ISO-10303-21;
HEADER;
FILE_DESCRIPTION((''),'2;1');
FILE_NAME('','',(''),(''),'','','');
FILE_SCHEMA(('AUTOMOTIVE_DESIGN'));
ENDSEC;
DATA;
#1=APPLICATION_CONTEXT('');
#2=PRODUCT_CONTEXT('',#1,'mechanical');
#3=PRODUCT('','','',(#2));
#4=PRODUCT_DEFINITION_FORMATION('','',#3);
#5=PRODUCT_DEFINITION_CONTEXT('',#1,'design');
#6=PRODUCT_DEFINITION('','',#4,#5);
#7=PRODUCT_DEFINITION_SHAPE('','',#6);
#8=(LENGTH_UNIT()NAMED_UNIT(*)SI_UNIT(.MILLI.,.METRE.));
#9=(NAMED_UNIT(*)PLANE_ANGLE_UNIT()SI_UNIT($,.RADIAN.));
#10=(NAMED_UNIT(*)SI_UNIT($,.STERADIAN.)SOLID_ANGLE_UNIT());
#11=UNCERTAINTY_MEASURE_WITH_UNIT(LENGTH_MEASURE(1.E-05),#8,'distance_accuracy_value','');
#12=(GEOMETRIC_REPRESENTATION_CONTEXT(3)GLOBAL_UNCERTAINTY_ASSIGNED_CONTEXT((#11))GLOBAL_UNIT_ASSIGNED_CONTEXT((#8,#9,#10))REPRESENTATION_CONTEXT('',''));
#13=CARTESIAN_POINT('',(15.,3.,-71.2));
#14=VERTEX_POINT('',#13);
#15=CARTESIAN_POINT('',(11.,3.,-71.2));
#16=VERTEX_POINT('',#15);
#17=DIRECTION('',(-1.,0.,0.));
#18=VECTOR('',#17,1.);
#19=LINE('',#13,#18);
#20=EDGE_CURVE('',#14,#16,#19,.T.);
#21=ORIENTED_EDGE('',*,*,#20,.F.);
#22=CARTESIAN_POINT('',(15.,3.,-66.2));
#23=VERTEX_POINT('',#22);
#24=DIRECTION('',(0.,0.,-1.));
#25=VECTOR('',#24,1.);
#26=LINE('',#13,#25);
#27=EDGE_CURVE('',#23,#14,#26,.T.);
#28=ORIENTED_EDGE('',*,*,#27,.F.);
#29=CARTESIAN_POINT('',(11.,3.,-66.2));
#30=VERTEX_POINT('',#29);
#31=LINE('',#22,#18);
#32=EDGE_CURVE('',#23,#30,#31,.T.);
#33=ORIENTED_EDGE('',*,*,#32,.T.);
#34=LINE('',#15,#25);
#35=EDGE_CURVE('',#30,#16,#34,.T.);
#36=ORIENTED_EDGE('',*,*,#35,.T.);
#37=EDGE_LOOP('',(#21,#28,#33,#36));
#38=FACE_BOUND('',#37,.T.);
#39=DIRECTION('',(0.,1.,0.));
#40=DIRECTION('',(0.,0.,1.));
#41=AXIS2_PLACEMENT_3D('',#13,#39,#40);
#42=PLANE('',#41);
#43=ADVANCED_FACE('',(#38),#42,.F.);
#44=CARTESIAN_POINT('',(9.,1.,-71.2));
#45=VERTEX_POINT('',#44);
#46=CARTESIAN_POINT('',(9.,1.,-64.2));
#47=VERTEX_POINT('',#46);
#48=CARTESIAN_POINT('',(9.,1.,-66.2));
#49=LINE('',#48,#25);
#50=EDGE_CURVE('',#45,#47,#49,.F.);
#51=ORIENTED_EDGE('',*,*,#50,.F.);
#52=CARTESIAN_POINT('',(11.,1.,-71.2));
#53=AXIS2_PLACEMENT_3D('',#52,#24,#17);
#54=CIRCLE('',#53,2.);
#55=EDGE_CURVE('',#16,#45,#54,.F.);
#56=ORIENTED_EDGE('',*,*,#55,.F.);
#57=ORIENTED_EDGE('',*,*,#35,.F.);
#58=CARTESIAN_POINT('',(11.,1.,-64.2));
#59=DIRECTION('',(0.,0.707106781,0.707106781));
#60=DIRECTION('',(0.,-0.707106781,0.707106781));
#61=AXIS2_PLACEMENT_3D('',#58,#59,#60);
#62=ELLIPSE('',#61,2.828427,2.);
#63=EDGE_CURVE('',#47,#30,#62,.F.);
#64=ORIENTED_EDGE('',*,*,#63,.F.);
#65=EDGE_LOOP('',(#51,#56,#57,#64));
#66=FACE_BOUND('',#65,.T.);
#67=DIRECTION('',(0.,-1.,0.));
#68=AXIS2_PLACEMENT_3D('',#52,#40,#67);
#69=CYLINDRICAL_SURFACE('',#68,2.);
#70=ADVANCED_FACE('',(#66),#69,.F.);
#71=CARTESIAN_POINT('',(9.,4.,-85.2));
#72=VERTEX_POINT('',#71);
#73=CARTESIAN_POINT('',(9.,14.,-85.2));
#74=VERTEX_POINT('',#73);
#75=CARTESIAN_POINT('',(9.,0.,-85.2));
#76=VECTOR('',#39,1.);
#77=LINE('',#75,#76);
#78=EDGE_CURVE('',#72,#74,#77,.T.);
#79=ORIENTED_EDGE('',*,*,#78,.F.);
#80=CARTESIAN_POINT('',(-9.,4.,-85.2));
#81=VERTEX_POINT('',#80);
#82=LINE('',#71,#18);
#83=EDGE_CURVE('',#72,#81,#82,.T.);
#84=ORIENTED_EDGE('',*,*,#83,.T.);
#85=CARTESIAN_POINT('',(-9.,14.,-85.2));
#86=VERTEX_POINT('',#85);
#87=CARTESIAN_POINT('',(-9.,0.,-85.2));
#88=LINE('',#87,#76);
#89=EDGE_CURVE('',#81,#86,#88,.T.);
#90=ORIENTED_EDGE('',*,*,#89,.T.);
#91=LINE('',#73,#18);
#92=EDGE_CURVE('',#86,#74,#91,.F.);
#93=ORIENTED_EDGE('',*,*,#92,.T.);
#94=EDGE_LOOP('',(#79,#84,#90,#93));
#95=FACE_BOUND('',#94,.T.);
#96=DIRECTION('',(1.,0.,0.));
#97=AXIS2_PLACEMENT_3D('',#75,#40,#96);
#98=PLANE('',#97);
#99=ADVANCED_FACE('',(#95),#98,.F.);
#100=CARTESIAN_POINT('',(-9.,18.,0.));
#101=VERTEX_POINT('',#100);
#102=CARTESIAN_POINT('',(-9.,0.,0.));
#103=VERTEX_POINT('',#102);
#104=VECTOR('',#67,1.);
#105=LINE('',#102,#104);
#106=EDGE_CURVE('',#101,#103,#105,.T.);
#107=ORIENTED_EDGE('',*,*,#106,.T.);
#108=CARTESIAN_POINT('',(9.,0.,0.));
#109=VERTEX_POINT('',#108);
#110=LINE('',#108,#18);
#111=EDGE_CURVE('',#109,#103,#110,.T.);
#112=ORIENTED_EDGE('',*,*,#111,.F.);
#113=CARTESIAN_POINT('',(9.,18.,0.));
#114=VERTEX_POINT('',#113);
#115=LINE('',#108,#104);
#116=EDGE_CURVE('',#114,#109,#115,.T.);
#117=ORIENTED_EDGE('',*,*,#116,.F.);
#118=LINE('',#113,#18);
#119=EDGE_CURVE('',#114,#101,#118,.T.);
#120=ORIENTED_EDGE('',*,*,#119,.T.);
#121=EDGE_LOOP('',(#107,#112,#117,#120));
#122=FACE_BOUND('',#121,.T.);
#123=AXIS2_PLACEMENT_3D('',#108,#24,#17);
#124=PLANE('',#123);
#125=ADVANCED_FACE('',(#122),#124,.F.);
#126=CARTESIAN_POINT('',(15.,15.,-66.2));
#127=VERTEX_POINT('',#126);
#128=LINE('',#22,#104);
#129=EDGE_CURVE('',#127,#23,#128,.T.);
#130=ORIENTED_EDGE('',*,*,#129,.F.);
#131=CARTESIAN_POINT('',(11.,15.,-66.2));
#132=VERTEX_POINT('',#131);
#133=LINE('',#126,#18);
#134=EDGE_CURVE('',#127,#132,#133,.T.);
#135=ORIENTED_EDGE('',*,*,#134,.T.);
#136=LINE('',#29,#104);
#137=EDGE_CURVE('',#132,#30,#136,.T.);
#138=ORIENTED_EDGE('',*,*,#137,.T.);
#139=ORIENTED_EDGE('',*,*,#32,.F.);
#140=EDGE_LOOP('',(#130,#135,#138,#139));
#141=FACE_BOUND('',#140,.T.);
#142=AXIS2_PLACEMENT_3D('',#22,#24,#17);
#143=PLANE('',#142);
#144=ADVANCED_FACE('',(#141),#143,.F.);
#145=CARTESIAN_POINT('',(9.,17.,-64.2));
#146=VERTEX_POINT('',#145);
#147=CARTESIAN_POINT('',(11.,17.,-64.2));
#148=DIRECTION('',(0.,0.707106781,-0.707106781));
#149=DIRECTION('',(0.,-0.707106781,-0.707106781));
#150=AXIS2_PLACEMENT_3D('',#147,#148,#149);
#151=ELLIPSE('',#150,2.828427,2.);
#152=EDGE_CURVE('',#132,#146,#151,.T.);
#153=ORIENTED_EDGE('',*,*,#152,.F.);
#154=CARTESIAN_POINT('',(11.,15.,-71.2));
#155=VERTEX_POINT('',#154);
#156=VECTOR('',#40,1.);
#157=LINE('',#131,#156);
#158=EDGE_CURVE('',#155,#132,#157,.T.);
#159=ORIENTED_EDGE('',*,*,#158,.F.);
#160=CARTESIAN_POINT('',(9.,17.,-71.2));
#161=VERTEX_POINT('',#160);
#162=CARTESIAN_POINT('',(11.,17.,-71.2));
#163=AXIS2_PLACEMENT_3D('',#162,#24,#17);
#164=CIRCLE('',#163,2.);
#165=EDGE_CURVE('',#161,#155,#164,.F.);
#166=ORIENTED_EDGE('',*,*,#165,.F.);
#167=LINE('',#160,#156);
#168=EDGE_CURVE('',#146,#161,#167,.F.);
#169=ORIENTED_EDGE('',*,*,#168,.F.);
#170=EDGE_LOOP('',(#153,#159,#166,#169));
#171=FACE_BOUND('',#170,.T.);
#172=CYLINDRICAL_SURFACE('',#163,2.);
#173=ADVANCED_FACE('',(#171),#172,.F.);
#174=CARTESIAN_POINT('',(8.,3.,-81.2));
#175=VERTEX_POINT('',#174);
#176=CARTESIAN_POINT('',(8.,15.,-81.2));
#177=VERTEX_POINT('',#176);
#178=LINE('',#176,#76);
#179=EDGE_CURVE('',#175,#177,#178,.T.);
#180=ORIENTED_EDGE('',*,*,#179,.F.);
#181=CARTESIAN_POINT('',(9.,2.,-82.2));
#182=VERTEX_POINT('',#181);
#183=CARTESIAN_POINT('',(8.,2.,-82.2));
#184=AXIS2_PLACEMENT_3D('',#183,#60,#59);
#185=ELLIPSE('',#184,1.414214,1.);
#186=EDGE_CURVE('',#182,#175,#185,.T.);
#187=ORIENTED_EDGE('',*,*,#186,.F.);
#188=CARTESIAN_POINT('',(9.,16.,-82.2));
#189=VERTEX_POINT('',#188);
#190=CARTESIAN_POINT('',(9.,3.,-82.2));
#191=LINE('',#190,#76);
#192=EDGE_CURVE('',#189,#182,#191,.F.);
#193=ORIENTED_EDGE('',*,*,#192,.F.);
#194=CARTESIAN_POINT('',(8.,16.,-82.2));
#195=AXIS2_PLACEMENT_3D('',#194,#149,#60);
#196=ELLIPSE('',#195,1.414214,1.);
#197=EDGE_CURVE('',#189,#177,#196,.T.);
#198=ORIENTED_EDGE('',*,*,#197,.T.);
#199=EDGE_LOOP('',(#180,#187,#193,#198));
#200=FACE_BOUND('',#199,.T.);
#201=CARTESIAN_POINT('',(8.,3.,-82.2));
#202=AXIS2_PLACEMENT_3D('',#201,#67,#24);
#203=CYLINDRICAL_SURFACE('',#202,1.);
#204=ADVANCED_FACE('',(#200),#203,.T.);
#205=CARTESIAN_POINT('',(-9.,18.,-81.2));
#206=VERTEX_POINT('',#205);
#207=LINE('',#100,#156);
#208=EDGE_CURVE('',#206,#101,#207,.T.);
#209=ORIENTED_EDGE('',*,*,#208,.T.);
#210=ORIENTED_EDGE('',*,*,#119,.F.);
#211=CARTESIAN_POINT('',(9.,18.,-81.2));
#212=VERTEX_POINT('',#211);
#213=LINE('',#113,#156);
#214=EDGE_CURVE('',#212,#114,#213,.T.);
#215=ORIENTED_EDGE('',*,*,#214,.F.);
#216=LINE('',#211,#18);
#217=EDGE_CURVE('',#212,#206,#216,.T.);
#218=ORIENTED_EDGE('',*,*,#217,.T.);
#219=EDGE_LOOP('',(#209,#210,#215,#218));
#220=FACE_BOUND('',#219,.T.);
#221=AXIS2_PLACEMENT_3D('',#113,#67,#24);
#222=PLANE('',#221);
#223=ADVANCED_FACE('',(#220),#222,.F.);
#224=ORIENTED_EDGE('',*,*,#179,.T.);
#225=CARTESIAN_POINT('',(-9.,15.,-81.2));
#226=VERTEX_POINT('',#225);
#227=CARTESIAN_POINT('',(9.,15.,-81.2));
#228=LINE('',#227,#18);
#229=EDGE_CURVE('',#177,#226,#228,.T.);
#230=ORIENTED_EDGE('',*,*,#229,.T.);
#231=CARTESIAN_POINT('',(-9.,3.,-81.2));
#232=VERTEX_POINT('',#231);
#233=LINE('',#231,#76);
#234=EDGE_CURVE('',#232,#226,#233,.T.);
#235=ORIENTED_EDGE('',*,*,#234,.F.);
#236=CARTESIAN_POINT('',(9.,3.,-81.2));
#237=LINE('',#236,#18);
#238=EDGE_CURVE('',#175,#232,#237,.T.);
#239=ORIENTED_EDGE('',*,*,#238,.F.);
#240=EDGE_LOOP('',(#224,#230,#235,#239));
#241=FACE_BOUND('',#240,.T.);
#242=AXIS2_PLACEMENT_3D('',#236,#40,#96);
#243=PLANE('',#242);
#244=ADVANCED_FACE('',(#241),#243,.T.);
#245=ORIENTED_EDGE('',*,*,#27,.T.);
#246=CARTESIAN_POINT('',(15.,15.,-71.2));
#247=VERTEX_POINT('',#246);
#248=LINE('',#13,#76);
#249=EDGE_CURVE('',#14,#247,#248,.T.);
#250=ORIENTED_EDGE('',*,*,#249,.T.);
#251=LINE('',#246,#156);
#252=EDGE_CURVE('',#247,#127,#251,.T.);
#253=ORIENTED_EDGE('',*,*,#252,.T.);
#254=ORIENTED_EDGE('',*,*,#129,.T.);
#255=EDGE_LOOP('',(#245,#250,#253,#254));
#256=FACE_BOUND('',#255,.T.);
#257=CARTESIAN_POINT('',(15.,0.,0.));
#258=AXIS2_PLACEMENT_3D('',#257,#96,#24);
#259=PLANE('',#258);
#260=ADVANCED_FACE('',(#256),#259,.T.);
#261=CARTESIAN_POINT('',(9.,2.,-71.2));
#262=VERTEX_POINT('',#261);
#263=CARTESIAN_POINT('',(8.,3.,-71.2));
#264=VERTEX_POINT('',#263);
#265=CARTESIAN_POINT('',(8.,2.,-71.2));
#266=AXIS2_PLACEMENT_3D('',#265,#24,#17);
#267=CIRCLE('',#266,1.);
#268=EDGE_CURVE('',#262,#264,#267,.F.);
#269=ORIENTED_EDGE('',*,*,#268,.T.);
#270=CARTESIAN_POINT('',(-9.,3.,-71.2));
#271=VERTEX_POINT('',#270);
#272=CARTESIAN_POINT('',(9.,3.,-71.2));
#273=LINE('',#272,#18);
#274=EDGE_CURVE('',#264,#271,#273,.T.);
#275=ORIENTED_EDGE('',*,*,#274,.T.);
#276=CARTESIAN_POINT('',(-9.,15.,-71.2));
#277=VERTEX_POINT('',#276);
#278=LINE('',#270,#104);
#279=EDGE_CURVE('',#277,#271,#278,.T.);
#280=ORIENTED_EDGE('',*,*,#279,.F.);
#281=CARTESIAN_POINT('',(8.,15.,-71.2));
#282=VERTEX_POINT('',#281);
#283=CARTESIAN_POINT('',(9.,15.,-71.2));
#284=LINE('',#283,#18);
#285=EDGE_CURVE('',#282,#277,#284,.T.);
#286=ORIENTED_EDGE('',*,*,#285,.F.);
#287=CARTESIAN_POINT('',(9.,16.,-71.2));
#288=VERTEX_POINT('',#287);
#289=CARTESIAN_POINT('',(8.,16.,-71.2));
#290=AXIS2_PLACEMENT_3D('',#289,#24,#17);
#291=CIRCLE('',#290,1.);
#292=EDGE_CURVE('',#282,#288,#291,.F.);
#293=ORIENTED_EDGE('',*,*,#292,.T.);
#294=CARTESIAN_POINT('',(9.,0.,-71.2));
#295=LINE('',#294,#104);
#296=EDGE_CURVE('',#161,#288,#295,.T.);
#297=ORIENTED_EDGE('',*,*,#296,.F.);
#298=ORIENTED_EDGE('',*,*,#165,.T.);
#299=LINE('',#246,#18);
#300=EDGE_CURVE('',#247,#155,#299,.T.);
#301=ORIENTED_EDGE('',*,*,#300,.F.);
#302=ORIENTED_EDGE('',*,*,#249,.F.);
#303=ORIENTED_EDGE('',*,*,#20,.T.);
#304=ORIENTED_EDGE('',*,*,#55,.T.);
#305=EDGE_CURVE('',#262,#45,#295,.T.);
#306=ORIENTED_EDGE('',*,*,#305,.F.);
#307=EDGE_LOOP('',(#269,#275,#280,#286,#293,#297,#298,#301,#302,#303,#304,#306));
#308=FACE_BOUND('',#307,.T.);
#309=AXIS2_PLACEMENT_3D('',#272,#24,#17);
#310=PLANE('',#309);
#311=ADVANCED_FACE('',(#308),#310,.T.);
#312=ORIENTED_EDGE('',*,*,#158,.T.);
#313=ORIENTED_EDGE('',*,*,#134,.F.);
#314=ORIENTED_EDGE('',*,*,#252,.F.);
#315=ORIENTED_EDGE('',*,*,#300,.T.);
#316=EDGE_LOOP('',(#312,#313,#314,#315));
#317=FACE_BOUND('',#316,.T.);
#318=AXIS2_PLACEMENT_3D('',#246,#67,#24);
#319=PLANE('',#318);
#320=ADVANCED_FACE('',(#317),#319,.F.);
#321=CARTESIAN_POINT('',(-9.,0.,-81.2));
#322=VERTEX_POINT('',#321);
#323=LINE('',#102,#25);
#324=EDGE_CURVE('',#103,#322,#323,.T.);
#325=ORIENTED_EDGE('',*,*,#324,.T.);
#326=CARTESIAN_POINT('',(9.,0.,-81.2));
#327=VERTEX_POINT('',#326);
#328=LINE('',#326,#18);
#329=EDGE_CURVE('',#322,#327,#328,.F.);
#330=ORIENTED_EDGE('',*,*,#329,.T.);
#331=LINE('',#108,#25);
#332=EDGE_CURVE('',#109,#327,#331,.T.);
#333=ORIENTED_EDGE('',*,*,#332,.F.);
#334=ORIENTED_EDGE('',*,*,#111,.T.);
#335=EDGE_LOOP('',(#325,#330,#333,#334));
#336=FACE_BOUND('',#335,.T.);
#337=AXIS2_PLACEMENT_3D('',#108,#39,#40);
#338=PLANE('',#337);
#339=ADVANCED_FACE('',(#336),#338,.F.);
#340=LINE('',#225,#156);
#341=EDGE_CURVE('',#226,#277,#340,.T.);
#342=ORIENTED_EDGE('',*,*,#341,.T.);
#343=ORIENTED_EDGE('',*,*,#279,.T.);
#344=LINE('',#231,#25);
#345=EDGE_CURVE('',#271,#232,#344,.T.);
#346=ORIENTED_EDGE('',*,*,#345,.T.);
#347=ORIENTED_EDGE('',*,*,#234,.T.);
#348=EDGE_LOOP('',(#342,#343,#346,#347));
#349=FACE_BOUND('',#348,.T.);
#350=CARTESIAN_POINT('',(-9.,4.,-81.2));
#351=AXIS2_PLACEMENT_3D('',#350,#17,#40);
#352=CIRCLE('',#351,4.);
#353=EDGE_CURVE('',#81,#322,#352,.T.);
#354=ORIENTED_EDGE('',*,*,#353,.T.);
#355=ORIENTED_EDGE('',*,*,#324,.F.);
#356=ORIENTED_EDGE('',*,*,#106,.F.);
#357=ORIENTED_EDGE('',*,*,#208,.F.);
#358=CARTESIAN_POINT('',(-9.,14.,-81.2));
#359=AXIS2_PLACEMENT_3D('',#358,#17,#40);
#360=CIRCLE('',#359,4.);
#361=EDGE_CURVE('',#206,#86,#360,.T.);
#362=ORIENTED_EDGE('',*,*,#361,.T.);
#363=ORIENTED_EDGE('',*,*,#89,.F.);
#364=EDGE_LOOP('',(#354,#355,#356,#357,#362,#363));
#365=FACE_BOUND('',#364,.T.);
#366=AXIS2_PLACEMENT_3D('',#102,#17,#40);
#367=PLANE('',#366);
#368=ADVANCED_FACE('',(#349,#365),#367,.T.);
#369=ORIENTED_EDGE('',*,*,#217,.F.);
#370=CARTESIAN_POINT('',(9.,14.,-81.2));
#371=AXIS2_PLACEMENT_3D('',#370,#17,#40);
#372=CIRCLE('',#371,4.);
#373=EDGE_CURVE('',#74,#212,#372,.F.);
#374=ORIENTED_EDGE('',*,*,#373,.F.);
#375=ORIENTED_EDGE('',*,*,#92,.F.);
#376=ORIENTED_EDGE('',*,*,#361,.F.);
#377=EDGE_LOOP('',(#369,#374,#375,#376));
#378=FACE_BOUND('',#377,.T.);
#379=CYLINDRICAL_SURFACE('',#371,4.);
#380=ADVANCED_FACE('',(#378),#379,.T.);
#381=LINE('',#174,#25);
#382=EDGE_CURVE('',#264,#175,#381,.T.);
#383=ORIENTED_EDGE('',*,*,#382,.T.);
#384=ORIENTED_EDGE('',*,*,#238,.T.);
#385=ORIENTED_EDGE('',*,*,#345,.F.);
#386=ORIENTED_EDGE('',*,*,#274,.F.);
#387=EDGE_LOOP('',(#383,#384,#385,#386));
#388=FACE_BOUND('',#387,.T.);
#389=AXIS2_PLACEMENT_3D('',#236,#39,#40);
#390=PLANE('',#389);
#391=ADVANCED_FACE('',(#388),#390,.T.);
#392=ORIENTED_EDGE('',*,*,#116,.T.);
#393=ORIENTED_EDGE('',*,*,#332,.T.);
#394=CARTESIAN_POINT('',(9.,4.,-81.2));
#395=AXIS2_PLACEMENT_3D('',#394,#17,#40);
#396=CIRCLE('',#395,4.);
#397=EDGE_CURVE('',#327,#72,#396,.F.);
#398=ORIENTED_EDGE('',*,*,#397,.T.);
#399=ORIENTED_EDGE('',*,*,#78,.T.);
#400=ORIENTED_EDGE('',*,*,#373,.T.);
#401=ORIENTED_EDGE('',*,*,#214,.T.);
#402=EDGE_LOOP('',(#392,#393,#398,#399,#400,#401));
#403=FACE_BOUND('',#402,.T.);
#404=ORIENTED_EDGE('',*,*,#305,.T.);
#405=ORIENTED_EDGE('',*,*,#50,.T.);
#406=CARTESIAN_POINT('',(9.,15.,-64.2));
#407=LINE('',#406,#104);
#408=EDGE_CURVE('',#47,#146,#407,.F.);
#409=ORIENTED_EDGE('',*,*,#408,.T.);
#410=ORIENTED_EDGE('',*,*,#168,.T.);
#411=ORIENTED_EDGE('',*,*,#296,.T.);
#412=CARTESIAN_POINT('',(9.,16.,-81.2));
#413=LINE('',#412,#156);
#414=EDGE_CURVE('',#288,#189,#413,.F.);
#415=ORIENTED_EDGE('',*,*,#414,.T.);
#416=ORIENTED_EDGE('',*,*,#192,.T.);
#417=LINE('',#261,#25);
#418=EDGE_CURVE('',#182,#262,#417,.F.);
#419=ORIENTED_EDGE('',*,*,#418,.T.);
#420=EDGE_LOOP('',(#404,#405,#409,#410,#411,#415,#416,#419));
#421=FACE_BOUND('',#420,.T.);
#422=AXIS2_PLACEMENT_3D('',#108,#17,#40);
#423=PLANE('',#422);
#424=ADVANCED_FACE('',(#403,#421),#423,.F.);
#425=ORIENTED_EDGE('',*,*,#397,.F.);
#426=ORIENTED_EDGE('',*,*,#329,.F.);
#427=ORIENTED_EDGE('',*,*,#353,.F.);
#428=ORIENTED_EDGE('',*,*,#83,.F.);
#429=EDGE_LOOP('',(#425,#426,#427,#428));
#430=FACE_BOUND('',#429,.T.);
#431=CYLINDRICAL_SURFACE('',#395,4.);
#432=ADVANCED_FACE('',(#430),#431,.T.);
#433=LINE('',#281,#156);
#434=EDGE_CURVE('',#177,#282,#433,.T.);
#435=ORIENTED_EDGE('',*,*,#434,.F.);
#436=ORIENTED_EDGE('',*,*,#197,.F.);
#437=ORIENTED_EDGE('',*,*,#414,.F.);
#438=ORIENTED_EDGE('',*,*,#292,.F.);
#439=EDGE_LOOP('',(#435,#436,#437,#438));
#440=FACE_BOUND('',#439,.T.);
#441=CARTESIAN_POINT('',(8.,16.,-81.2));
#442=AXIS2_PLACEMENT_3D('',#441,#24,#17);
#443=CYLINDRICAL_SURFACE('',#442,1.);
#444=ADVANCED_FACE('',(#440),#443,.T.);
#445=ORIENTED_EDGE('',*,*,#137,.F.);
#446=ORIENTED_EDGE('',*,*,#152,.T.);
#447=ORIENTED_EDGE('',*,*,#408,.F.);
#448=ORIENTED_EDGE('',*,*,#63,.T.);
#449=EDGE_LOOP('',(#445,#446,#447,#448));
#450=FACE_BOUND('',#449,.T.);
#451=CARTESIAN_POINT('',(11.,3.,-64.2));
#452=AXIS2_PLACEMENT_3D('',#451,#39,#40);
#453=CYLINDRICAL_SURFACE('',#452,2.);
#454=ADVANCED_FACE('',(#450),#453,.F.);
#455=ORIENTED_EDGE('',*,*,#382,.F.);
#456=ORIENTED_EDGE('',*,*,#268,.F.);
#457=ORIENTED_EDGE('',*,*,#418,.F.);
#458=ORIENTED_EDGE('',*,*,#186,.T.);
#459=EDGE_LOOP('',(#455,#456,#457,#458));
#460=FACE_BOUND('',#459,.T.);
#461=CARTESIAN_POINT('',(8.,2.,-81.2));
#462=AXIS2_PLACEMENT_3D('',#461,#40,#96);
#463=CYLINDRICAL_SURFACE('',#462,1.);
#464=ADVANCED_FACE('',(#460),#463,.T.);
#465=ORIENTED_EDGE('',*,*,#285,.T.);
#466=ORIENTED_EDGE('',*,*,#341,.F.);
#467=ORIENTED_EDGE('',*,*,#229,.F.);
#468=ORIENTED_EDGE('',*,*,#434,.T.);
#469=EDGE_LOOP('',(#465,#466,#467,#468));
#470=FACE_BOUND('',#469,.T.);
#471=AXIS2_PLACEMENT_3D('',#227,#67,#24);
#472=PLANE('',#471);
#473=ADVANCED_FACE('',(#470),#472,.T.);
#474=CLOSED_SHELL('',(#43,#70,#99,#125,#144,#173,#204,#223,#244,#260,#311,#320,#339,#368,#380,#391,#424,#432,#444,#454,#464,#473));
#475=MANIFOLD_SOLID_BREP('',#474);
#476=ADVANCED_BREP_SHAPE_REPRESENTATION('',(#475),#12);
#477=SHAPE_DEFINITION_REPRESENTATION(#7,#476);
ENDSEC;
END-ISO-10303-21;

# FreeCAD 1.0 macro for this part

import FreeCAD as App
import Part
import Sketcher
Q = App.Units.Quantity


def edges_at(feature, points):
    """Names of the edges that pass closest to the given points."""
    edges = feature.Shape.Edges
    near = lambda p: min(range(len(edges)), key=lambda i: edges[i].distToShape(Part.Vertex(*p))[0])
    return sorted({f"Edge{near(p) + 1}" for p in points})


def add_polygon(sketch, points):
    """Adds a closed chain of lines whose ends are joined by coincident constraints."""
    first, n = sketch.GeometryCount, len(points)
    for a, b in zip(points, points[1:] + points[:1]):
        sketch.addGeometry(Part.LineSegment(App.Vector(*a, 0), App.Vector(*b, 0)), False)
    for i in range(n):
        sketch.addConstraint(Sketcher.Constraint("Coincident", first + i, 2, first + (i + 1) % n, 1))

doc = App.newDocument("Part")
body = doc.addObject("PartDesign::Body", "Body")

# Sketch on YZ plane
sketch1 = body.newObject("Sketcher::SketchObject", "Sketch")
sketch1.AttachmentSupport = (doc.getObject("YZ_Plane"), [""])
sketch1.MapMode = "FlatFace"
add_polygon(sketch1, [(18, 0), (0, 0), (0, -85.2), (18, -85.2)])  # lines 0-3
add_polygon(sketch1, [(3, -81.2), (3, -71.2), (15, -71.2), (15, -81.2)])  # lines 4-7
sketch1.addConstraint(Sketcher.Constraint("Horizontal", 0))
sketch1.addConstraint(Sketcher.Constraint("Vertical", 1))
sketch1.addConstraint(Sketcher.Constraint("Horizontal", 2))
sketch1.addConstraint(Sketcher.Constraint("Vertical", 3))
sketch1.addConstraint(Sketcher.Constraint("Vertical", 4))
sketch1.addConstraint(Sketcher.Constraint("Horizontal", 5))
sketch1.addConstraint(Sketcher.Constraint("Vertical", 6))
sketch1.addConstraint(Sketcher.Constraint("Horizontal", 7))
sketch1.addConstraint(Sketcher.Constraint("Coincident", 0, 2, -1, 1))
sketch1.addConstraint(Sketcher.Constraint("DistanceX", 0, 2, 0, 1, Q("18 mm")))
sketch1.addConstraint(Sketcher.Constraint("DistanceX", 5, 1, 5, 2, Q("12 mm")))
sketch1.addConstraint(Sketcher.Constraint("DistanceY", 4, 1, 4, 2, Q("10 mm")))
sketch1.addConstraint(Sketcher.Constraint("DistanceY", 1, 2, 1, 1, Q("85.2 mm")))
sketch1.addConstraint(Sketcher.Constraint("DistanceX", -1, 1, 4, 2, Q("3 mm")))
sketch1.addConstraint(Sketcher.Constraint("DistanceY", 1, 2, 4, 2, Q("14 mm")))
pad1 = body.newObject("PartDesign::Pad", "Pad")
pad1.Profile = sketch1
pad1.Length = 18
pad1.Midplane = True

# Sketch on YZ plane
sketch2 = body.newObject("Sketcher::SketchObject", "Sketch001")
sketch2.AttachmentSupport = (doc.getObject("YZ_Plane"), [""])
sketch2.MapMode = "FlatFace"
sketch2.AttachmentOffset = App.Placement(App.Vector(0, 0, 9), App.Rotation())
add_polygon(sketch2, [(15, -66.2), (3, -66.2), (3, -71.2), (15, -71.2)])  # lines 0-3
sketch2.addConstraint(Sketcher.Constraint("Horizontal", 0))
sketch2.addConstraint(Sketcher.Constraint("Vertical", 1))
sketch2.addConstraint(Sketcher.Constraint("Horizontal", 2))
sketch2.addConstraint(Sketcher.Constraint("Vertical", 3))
sketch2.addConstraint(Sketcher.Constraint("DistanceX", 0, 2, 0, 1, Q("12 mm")))
sketch2.addConstraint(Sketcher.Constraint("DistanceY", 1, 2, 1, 1, Q("5 mm")))
sketch2.addConstraint(Sketcher.Constraint("DistanceX", -1, 1, 0, 2, Q("3 mm")))
sketch2.addConstraint(Sketcher.Constraint("DistanceY", 0, 2, -1, 1, Q("66.2 mm")))
pad2 = body.newObject("PartDesign::Pad", "Pad001")
pad2.Profile = sketch2
pad2.Length = 6
doc.recompute()

fillet = body.newObject("PartDesign::Fillet", "Fillet")
fillet.Base = (pad2, edges_at(pad2, [(9, 15, -68.7), (9, 9, -66.2), (9, 3, -68.7)]))
fillet.Radius = 2
doc.recompute()

fillet2 = body.newObject("PartDesign::Fillet", "Fillet001")
fillet2.Base = (fillet, edges_at(fillet, [(9, 9, -81.2), (9, 15, -76.2), (9, 3, -76.2)]))
fillet2.Radius = 1
doc.recompute()

fillet3 = body.newObject("PartDesign::Fillet", "Fillet002")
fillet3.Base = (fillet2, edges_at(fillet2, [(0, 18, -85.2), (0, 0, -85.2)]))
fillet3.Radius = 4

doc.recompute()
